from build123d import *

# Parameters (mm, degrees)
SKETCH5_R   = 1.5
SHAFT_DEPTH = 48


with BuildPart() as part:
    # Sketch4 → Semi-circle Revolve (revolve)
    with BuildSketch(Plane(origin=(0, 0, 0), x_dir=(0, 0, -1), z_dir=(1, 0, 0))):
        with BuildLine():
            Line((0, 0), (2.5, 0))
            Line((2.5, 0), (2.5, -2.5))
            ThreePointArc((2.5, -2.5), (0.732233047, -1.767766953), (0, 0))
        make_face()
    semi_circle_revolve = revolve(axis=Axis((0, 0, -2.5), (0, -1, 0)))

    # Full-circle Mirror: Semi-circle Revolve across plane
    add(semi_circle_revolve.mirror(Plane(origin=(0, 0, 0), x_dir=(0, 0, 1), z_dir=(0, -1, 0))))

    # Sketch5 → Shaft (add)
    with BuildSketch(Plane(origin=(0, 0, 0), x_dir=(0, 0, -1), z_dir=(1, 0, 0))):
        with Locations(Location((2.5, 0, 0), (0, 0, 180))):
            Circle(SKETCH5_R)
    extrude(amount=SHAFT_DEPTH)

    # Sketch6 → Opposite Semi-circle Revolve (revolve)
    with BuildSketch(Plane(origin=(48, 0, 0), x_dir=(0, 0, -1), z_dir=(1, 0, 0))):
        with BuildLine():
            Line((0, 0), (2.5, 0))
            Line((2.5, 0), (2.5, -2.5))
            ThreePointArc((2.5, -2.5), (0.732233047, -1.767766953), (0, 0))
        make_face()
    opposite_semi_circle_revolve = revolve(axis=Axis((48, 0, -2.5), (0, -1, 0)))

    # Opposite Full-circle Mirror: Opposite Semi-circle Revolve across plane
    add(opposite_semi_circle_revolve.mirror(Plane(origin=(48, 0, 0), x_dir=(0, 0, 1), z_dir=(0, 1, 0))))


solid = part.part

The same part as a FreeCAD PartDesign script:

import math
import FreeCAD as App
import Part
import Sketcher

V = App.Vector

doc = App.newDocument("Part")
body = doc.addObject("PartDesign::Body", "Body")

# Sketch on YZ plane
sketch1 = body.newObject("Sketcher::SketchObject", "Sketch")
sketch1.AttachmentSupport = (doc.getObject("YZ_Plane"), [""])
sketch1.MapMode = "FlatFace"
sketch1.addGeometry([
    Part.LineSegment(V(0, -2.5, 0), V(0, 0, 0)),
    Part.ArcOfCircle(Part.Circle(V(0, -2.5, 0), V(0, 0, 1), 2.5), math.radians(90), math.radians(180)),
    Part.LineSegment(V(-2.5, -2.5, 0), V(0, -2.5, 0)),
], False)
sketch1.addGeometry(Part.LineSegment(V(0, -2.5, 0), V(-2.5, -2.5, 0)), True)  # axis
sketch1.addConstraint([
    Sketcher.Constraint("Coincident", 0, 2, 1, 1),
    Sketcher.Constraint("Coincident", 1, 2, 2, 1),
    Sketcher.Constraint("Coincident", 2, 2, 0, 1),
    Sketcher.Constraint("Vertical", 0),
    Sketcher.Constraint("Horizontal", 2),
    Sketcher.Constraint("Horizontal", 3),
    Sketcher.Constraint("Coincident", 0, 2, -1, 1),
    Sketcher.Constraint("Coincident", 2, 2, 1, 3),
    Sketcher.Constraint("Coincident", 3, 1, 1, 3),
    Sketcher.Constraint("Equal", 2, 3),
    Sketcher.Constraint("Radius", 1, 2.5),
])
revolution = body.newObject("PartDesign::Revolution", "Revolution")
revolution.Profile = sketch1
revolution.ReferenceAxis = (sketch1, ["Axis0"])
revolution.Angle = 360
doc.recompute()

mirrored = body.newObject("PartDesign::Mirrored", "Mirrored")
mirrored.Originals = [revolution]
mirrored.MirrorPlane = (doc.getObject("XZ_Plane"), [""])
body.Tip = mirrored

# Sketch on YZ plane
sketch2 = body.newObject("Sketcher::SketchObject", "Sketch001")
sketch2.AttachmentSupport = (doc.getObject("YZ_Plane"), [""])
sketch2.MapMode = "FlatFace"
sketch2.addGeometry(Part.Circle(V(0, -2.5, 0), V(0, 0, 1), 1.5), False)
sketch2.addConstraint([
    Sketcher.Constraint("PointOnObject", 0, 3, -2),
    Sketcher.Constraint("Diameter", 0, 3.0),
    Sketcher.Constraint("DistanceY", 0, 3, -1, 1, 2.5),
])
pad1 = body.newObject("PartDesign::Pad", "Pad")
pad1.Profile = sketch2
pad1.Length = 48

# Sketch on YZ plane
sketch3 = body.newObject("Sketcher::SketchObject", "Sketch002")
sketch3.AttachmentSupport = (doc.getObject("YZ_Plane"), [""])
sketch3.MapMode = "FlatFace"
sketch3.AttachmentOffset = App.Placement(V(0, 0, 48), App.Rotation())
sketch3.addGeometry([
    Part.LineSegment(V(0, -2.5, 0), V(0, 0, 0)),
    Part.ArcOfCircle(Part.Circle(V(0, -2.5, 0), V(0, 0, 1), 2.5), math.radians(90), math.radians(180)),
    Part.LineSegment(V(-2.5, -2.5, 0), V(0, -2.5, 0)),
], False)
sketch3.addGeometry(Part.LineSegment(V(0, -2.5, 0), V(-2.5, -2.5, 0)), True)  # axis
sketch3.addConstraint([
    Sketcher.Constraint("Coincident", 0, 2, 1, 1),
    Sketcher.Constraint("Coincident", 1, 2, 2, 1),
    Sketcher.Constraint("Coincident", 2, 2, 0, 1),
    Sketcher.Constraint("Vertical", 0),
    Sketcher.Constraint("Horizontal", 2),
    Sketcher.Constraint("Horizontal", 3),
    Sketcher.Constraint("Coincident", 0, 2, -1, 1),
    Sketcher.Constraint("Coincident", 2, 2, 1, 3),
    Sketcher.Constraint("Coincident", 3, 1, 1, 3),
    Sketcher.Constraint("Equal", 2, 3),
    Sketcher.Constraint("Radius", 1, 2.5),
])
revolution2 = body.newObject("PartDesign::Revolution", "Revolution001")
revolution2.Profile = sketch3
revolution2.ReferenceAxis = (sketch3, ["Axis0"])
revolution2.Angle = 360
doc.recompute()

mirrored2 = body.newObject("PartDesign::Mirrored", "Mirrored001")
mirrored2.Originals = [revolution2]
mirrored2.MirrorPlane = (doc.getObject("XZ_Plane"), [""])
body.Tip = mirrored2

doc.recompute()
